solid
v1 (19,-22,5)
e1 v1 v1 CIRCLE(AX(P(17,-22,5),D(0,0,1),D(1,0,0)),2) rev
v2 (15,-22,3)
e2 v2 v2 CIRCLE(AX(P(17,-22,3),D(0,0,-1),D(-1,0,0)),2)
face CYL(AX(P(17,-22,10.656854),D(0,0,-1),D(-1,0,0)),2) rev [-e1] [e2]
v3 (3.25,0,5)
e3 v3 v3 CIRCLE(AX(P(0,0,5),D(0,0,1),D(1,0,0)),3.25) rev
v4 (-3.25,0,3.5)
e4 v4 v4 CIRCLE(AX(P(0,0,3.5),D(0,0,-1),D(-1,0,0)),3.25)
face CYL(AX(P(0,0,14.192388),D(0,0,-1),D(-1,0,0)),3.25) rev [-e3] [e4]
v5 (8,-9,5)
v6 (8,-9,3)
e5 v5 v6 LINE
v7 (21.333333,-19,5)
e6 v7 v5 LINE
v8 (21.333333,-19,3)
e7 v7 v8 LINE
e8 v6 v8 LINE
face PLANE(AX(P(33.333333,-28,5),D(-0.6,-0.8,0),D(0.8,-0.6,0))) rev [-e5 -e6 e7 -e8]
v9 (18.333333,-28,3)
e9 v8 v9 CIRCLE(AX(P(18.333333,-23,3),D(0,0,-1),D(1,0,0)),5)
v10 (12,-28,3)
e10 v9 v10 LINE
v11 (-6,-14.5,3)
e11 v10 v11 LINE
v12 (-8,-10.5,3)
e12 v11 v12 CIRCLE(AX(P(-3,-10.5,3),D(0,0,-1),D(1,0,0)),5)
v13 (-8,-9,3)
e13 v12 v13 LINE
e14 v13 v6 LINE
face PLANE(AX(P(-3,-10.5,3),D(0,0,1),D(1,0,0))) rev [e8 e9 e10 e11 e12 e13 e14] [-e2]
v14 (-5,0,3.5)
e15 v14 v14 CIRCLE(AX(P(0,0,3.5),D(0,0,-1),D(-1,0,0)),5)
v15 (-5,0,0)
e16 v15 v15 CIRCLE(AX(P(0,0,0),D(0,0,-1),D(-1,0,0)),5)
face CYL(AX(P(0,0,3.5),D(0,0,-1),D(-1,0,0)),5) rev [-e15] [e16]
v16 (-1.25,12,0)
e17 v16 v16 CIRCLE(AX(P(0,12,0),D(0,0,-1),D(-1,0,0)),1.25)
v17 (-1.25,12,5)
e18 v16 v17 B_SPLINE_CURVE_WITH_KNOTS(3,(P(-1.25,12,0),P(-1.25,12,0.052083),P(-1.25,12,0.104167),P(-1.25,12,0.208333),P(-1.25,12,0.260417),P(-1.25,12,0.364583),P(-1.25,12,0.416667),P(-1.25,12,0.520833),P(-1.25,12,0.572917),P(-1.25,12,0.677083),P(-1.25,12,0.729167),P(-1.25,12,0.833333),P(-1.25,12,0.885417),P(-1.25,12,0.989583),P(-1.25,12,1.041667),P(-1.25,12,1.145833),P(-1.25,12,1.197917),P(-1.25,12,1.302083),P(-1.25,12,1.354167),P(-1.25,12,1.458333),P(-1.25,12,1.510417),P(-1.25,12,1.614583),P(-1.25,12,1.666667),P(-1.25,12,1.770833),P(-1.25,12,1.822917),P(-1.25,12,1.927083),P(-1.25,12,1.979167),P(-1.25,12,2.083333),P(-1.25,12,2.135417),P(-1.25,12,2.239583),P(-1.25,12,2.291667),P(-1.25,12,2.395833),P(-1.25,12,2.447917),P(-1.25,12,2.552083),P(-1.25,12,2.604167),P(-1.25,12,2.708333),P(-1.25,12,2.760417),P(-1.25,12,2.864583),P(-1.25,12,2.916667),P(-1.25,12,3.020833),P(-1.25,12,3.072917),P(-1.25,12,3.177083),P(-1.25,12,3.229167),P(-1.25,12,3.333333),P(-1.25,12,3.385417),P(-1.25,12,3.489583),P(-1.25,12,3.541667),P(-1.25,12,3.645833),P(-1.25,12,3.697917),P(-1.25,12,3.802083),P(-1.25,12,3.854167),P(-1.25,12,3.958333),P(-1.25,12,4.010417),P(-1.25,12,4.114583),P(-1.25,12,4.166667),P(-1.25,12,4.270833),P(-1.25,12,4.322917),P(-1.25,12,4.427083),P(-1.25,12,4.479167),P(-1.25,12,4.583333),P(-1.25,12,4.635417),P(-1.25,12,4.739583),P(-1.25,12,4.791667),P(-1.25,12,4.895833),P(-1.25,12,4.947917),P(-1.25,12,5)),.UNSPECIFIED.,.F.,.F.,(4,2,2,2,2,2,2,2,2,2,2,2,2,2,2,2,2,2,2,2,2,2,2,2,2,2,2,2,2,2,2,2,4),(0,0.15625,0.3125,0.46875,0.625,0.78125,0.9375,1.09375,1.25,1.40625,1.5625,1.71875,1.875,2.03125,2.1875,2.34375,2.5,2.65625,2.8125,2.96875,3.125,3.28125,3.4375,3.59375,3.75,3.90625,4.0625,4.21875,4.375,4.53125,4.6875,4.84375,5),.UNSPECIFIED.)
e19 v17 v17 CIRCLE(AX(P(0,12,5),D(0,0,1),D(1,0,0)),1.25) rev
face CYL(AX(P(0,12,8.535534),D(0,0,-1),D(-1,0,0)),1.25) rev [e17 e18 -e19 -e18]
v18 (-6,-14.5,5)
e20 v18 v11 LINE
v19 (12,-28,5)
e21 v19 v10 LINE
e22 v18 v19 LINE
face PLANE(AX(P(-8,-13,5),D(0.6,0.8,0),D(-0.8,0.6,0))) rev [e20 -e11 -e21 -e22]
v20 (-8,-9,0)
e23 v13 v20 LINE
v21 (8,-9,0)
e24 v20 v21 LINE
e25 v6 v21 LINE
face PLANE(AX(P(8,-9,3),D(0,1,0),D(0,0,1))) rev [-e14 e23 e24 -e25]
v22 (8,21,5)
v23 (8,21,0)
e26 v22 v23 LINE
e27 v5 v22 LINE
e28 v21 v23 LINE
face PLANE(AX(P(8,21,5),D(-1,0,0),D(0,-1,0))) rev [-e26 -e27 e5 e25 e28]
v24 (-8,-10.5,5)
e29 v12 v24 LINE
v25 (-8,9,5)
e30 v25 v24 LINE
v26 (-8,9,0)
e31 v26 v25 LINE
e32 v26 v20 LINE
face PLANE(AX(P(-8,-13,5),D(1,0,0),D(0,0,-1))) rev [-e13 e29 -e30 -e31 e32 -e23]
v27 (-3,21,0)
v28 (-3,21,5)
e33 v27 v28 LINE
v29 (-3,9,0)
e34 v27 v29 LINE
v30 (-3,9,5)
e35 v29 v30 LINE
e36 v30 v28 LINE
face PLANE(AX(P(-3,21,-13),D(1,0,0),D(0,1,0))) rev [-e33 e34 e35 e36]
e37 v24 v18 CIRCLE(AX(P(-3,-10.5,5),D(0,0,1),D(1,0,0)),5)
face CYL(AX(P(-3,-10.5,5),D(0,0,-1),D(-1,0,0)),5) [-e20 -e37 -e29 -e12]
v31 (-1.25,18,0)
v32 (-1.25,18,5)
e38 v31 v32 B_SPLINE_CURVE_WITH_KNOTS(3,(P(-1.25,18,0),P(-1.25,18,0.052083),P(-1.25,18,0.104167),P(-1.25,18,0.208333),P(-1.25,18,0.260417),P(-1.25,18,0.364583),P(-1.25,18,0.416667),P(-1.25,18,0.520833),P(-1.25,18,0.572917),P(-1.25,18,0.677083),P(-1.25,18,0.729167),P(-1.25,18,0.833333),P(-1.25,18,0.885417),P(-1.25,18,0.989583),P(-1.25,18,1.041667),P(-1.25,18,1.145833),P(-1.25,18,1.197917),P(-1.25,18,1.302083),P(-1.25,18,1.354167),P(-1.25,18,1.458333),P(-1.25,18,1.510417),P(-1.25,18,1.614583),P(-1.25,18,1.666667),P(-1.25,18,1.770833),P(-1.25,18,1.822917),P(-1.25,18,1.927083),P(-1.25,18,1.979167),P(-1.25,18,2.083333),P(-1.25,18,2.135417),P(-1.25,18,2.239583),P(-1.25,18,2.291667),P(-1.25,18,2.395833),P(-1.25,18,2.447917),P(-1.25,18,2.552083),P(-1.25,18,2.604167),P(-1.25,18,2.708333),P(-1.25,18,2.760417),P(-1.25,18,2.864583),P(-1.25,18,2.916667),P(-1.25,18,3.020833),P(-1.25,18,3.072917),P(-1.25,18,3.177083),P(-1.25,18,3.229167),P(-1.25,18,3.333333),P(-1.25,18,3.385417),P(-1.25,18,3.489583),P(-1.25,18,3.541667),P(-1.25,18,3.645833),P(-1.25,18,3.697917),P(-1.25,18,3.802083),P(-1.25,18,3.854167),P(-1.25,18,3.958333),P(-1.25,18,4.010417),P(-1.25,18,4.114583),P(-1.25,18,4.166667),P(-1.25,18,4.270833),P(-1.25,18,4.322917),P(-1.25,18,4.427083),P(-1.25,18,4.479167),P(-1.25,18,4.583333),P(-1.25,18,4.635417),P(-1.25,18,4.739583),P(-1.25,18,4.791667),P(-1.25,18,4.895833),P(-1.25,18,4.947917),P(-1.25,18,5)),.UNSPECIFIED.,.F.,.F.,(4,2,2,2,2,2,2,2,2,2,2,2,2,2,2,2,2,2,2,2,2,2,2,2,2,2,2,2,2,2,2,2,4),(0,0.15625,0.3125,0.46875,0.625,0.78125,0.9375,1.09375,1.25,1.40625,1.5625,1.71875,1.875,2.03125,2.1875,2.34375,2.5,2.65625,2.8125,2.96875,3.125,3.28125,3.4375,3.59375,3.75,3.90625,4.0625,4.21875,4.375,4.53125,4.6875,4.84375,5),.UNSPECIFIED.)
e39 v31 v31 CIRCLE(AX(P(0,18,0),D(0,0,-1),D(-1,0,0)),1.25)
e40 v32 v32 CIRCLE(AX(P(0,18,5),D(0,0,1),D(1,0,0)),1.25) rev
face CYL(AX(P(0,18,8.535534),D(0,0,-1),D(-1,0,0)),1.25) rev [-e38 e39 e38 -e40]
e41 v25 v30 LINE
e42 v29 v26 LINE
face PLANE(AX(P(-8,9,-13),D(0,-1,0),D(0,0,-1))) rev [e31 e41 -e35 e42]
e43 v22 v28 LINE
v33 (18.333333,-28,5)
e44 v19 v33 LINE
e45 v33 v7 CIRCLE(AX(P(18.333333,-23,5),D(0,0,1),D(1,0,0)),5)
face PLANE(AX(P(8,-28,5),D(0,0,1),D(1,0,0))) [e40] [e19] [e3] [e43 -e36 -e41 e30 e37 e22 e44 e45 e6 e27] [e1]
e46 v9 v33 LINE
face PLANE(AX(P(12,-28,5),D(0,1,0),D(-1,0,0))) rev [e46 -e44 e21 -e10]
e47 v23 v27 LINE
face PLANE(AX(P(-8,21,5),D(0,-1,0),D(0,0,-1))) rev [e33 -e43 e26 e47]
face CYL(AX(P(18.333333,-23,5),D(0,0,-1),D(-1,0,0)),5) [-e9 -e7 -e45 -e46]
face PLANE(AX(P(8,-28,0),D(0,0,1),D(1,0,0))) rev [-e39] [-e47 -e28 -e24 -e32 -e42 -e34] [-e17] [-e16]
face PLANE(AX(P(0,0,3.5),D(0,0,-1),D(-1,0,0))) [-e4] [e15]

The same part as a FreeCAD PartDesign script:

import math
import FreeCAD as App
import Part
import Sketcher
from FreeCAD import Vector


def edges_at(feature, points):
    """Names of the edges that pass closest to the given points."""
    edges = feature.Shape.Edges
    near = lambda p: min(range(len(edges)), key=lambda i: edges[i].distToShape(Part.Vertex(*p))[0])
    return sorted({f"Edge{near(p) + 1}" for p in points})


def add_polygon(sketch, points):
    """Adds a closed chain of lines whose ends are joined by coincident constraints."""
    first, n = sketch.GeometryCount, len(points)
    for a, b in zip(points, points[1:] + points[:1]):
        sketch.addGeometry(Part.LineSegment(App.Vector(*a, 0), App.Vector(*b, 0)), False)
    for i in range(n):
        sketch.addConstraint(Sketcher.Constraint("Coincident", first + i, 2, first + (i + 1) % n, 1))

doc = App.newDocument("Part")
body = doc.addObject("PartDesign::Body", "Body")

sketch1 = body.newObject("Sketcher::SketchObject", "Sketch")
sketch1.AttachmentSupport = (doc.getObject("XY_Plane"), [""])
sketch1.MapMode = "FlatFace"
add_polygon(sketch1, [(-8, -13), (12, -28), (33.333333, -28), (8, -9), (8, 21), (-8, 21)])
sketch1.addConstraint([
    Sketcher.Constraint("Horizontal", 1),
    Sketcher.Constraint("Vertical", 3),
    Sketcher.Constraint("Horizontal", 4),
    Sketcher.Constraint("Vertical", 5),
    Sketcher.Constraint("Parallel", 0, 2),
    Sketcher.Constraint("DistanceX", 4, 2, 4, 1, 16.0),
    Sketcher.Constraint("DistanceY", 3, 1, 3, 2, 30.0),
    Sketcher.Constraint("DistanceY", 5, 2, 5, 1, 34.0),
    Sketcher.Constraint("Distance", 0, 25.0),
    Sketcher.Constraint("DistanceX", -1, 1, 0, 2, 12.0),
    Sketcher.Constraint("DistanceY", 0, 2, -1, 1, 28.0),
    Sketcher.Constraint("DistanceX", -1, 1, 2, 2, 8.0),
])
pad1 = body.newObject("PartDesign::Pad", "Pad")
pad1.Profile = sketch1
pad1.Length = 5

sketch2 = body.newObject("Sketcher::SketchObject", "Sketch001")
sketch2.AttachmentSupport = (doc.getObject("XY_Plane"), [""])
sketch2.MapMode = "FlatFace"
sketch2.addGeometry(Part.Circle(Vector(0, 0, 0), Vector(0, 0, 1), 5), False)
sketch2.addConstraint([
    Sketcher.Constraint("Coincident", 0, 3, -1, 1),
    Sketcher.Constraint("Diameter", 0, 10.0),
])
pocket1 = body.newObject("PartDesign::Pocket", "Pocket")
pocket1.Profile = sketch2
pocket1.Length = 3.5
pocket1.Reversed = True

sketch3 = body.newObject("Sketcher::SketchObject", "Sketch002")
sketch3.AttachmentSupport = (doc.getObject("XY_Plane"), [""])
sketch3.MapMode = "FlatFace"
sketch3.AttachmentOffset = App.Placement(Vector(0, 0, 3.5), App.Rotation())
sketch3.addGeometry(Part.Circle(Vector(0, 0, 0), Vector(0, 0, 1), 3.25), False)
sketch3.addConstraint([
    Sketcher.Constraint("Coincident", 0, 3, -1, 1),
    Sketcher.Constraint("Diameter", 0, 6.5),
])
pocket2 = body.newObject("PartDesign::Pocket", "Pocket001")
pocket2.Profile = sketch3
pocket2.Length = 1.5
pocket2.Reversed = True

sketch4 = body.newObject("Sketcher::SketchObject", "Sketch003")
sketch4.AttachmentSupport = (doc.getObject("XY_Plane"), [""])
sketch4.MapMode = "FlatFace"
sketch4.AttachmentOffset = App.Placement(Vector(0, 0, 5), App.Rotation())
add_polygon(sketch4, [(-8, 21), (-8, 9), (-3, 9), (-3, 21)])
sketch4.addConstraint([
    Sketcher.Constraint("Vertical", 0),
    Sketcher.Constraint("Horizontal", 1),
    Sketcher.Constraint("Vertical", 2),
    Sketcher.Constraint("Horizontal", 3),
    Sketcher.Constraint("DistanceX", 1, 1, 1, 2, 5.0),
    Sketcher.Constraint("DistanceY", 0, 2, 0, 1, 12.0),
    Sketcher.Constraint("DistanceX", 0, 2, -1, 1, 8.0),
    Sketcher.Constraint("DistanceY", -1, 1, 0, 2, 9.0),
])
pocket3 = body.newObject("PartDesign::Pocket", "Pocket002")
pocket3.Profile = sketch4
pocket3.Length = 5

sketch5 = body.newObject("Sketcher::SketchObject", "Sketch004")
sketch5.AttachmentSupport = (doc.getObject("XY_Plane"), [""])
sketch5.MapMode = "FlatFace"
sketch5.addGeometry([
    Part.Circle(Vector(0, 18, 0), Vector(0, 0, 1), 1.25),
    Part.Circle(Vector(0, 12, 0), Vector(0, 0, 1), 1.25),
], False)
sketch5.addConstraint([
    Sketcher.Constraint("Equal", 0, 1),
    Sketcher.Constraint("PointOnObject", 0, 3, -2),
    Sketcher.Constraint("PointOnObject", 1, 3, -2),
    Sketcher.Constraint("Diameter", 0, 2.5),
    Sketcher.Constraint("DistanceY", -1, 1, 0, 3, 18.0),
    Sketcher.Constraint("DistanceY", -1, 1, 1, 3, 12.0),
])
pocket4 = body.newObject("PartDesign::Pocket", "Pocket003")
pocket4.Profile = sketch5
pocket4.Length = 5
pocket4.Reversed = True
doc.recompute()

fillet = body.newObject("PartDesign::Fillet", "Fillet")
fillet.Base = (pocket4, edges_at(pocket4, [(33.333, -28, 2.5), (-8, -13, 2.5)]))
fillet.Radius = 5

sketch6 = body.newObject("Sketcher::SketchObject", "Sketch005")
sketch6.AttachmentSupport = (doc.getObject("XY_Plane"), [""])
sketch6.MapMode = "FlatFace"
sketch6.AttachmentOffset = App.Placement(Vector(0, 0, 3), App.Rotation())
sketch6.addGeometry([
    Part.LineSegment(Vector(-8, -9, 0), Vector(8, -9, 0)),
    Part.LineSegment(Vector(8, -9, 0), Vector(21.333333, -19, 0)),
    Part.ArcOfCircle(Part.Circle(Vector(18.333333, -23, 0), Vector(0, 0, 1), 5), math.radians(-90), math.radians(53.130102)),
    Part.LineSegment(Vector(18.333333, -28, 0), Vector(12, -28, 0)),
    Part.LineSegment(Vector(12, -28, 0), Vector(-6, -14.5, 0)),
    Part.ArcOfCircle(Part.Circle(Vector(-3, -10.5, 0), Vector(0, 0, 1), 5), math.radians(-180), math.radians(-126.869898)),
    Part.LineSegment(Vector(-8, -10.5, 0), Vector(-8, -9, 0)),
], False)
sketch6.addConstraint([
    Sketcher.Constraint("Coincident", 0, 2, 1, 1),
    Sketcher.Constraint("Tangent", 1, 2, 2, 2),
    Sketcher.Constraint("Tangent", 2, 1, 3, 1),
    Sketcher.Constraint("Coincident", 3, 2, 4, 1),
    Sketcher.Constraint("Tangent", 4, 2, 5, 2),
    Sketcher.Constraint("Tangent", 5, 1, 6, 1),
    Sketcher.Constraint("Coincident", 6, 2, 0, 1),
    Sketcher.Constraint("Horizontal", 0),
    Sketcher.Constraint("Horizontal", 3),
    Sketcher.Constraint("Vertical", 6),
    Sketcher.Constraint("Equal", 2, 5),
    Sketcher.Constraint("Parallel", 1, 4),
    Sketcher.Constraint("Radius", 2, 5.0),
    Sketcher.Constraint("DistanceX", 0, 1, 0, 2, 16.0),
    Sketcher.Constraint("DistanceY", 6, 1, 6, 2, 1.5),
    Sketcher.Constraint("DistanceY", 2, 3, -1, 1, 23.0),
    Sketcher.Constraint("DistanceX", 5, 3, -1, 1, 3.0),
    Sketcher.Constraint("DistanceY", 0, 2, -1, 1, 9.0),
    Sketcher.Constraint("DistanceY", 1, 2, -1, 1, 19.0),
])
pocket5 = body.newObject("PartDesign::Pocket", "Pocket004")
pocket5.Profile = sketch6
pocket5.Length = 3

sketch7 = body.newObject("Sketcher::SketchObject", "Sketch006")
sketch7.AttachmentSupport = (doc.getObject("XY_Plane"), [""])
sketch7.MapMode = "FlatFace"
sketch7.AttachmentOffset = App.Placement(Vector(0, 0, 3), App.Rotation())
sketch7.addGeometry(Part.Circle(Vector(17, -22, 0), Vector(0, 0, 1), 2), False)
sketch7.addConstraint([
    Sketcher.Constraint("Diameter", 0, 4.0),
    Sketcher.Constraint("DistanceX", -1, 1, 0, 3, 17.0),
    Sketcher.Constraint("DistanceY", 0, 3, -1, 1, 22.0),
])
pocket6 = body.newObject("PartDesign::Pocket", "Pocket005")
pocket6.Profile = sketch7
pocket6.Length = 2
pocket6.Reversed = True

sketch8 = body.newObject("Sketcher::SketchObject", "Sketch007")
sketch8.AttachmentSupport = (doc.getObject("XY_Plane"), [""])
sketch8.MapMode = "FlatFace"
sketch8.addGeometry([
    Part.Circle(Vector(0, 18, 0), Vector(0, 0, 1), 1.25),
    Part.Circle(Vector(0, 12, 0), Vector(0, 0, 1), 1.25),
], False)
sketch8.addConstraint([
    Sketcher.Constraint("Equal", 0, 1),
    Sketcher.Constraint("PointOnObject", 0, 3, -2),
    Sketcher.Constraint("PointOnObject", 1, 3, -2),
    Sketcher.Constraint("Diameter", 0, 2.5),
    Sketcher.Constraint("DistanceY", -1, 1, 0, 3, 18.0),
    Sketcher.Constraint("DistanceY", -1, 1, 1, 3, 12.0),
])
doc.recompute()
hole = body.newObject("PartDesign::Hole", "Hole")
hole.Profile = sketch8
hole.ThreadType = "None"
hole.Diameter = 2.5
hole.DepthType = "Dimension"
hole.Depth = 8
hole.DrillPoint = "Angled"
hole.DrillPointAngle = 118
hole.Reversed = True

doc.recompute()
